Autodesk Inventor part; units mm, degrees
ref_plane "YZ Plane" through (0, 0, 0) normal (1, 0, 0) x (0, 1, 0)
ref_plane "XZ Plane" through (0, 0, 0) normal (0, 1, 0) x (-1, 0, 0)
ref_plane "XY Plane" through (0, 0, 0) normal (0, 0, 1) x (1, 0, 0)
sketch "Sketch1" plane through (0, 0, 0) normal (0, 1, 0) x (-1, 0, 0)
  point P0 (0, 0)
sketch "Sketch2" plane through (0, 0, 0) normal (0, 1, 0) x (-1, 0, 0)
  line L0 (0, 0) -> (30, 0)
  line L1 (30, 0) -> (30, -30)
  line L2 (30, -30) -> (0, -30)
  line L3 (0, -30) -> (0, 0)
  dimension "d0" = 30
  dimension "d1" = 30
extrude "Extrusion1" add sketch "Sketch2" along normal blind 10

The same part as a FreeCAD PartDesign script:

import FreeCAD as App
import Part
import Sketcher
Q = App.Units.Quantity

doc = App.newDocument("Part")
body = doc.addObject("PartDesign::Body", "Body")

sketch1 = body.newObject("Sketcher::SketchObject", "Sketch")
sketch1.AttachmentSupport = (doc.getObject("XZ_Plane"), [""])
sketch1.MapMode = "FlatFace"
sketch1.addGeometry([
    Part.LineSegment(App.Vector(-30, 0, 0), App.Vector(0, 0, 0)),
    Part.LineSegment(App.Vector(0, 0, 0), App.Vector(0, -30, 0)),
    Part.LineSegment(App.Vector(0, -30, 0), App.Vector(-30, -30, 0)),
    Part.LineSegment(App.Vector(-30, -30, 0), App.Vector(-30, 0, 0)),
], False)
sketch1.addConstraint([
    Sketcher.Constraint("Coincident", 0, 2, 1, 1),
    Sketcher.Constraint("Coincident", 1, 2, 2, 1),
    Sketcher.Constraint("Coincident", 2, 2, 3, 1),
    Sketcher.Constraint("Coincident", 3, 2, 0, 1),
    Sketcher.Constraint("Horizontal", 0),
    Sketcher.Constraint("Vertical", 1),
    Sketcher.Constraint("Horizontal", 2),
    Sketcher.Constraint("Vertical", 3),
    Sketcher.Constraint("Coincident", 0, 2, -1, 1),
    Sketcher.Constraint("Equal", 2, 1),
    Sketcher.Constraint("DistanceX", 0, 1, 0, 2, Q("30 mm")),
])
pad1 = body.newObject("PartDesign::Pad", "Pad")
pad1.Profile = sketch1
pad1.Length = 10
pad1.Reversed = True

doc.recompute()
